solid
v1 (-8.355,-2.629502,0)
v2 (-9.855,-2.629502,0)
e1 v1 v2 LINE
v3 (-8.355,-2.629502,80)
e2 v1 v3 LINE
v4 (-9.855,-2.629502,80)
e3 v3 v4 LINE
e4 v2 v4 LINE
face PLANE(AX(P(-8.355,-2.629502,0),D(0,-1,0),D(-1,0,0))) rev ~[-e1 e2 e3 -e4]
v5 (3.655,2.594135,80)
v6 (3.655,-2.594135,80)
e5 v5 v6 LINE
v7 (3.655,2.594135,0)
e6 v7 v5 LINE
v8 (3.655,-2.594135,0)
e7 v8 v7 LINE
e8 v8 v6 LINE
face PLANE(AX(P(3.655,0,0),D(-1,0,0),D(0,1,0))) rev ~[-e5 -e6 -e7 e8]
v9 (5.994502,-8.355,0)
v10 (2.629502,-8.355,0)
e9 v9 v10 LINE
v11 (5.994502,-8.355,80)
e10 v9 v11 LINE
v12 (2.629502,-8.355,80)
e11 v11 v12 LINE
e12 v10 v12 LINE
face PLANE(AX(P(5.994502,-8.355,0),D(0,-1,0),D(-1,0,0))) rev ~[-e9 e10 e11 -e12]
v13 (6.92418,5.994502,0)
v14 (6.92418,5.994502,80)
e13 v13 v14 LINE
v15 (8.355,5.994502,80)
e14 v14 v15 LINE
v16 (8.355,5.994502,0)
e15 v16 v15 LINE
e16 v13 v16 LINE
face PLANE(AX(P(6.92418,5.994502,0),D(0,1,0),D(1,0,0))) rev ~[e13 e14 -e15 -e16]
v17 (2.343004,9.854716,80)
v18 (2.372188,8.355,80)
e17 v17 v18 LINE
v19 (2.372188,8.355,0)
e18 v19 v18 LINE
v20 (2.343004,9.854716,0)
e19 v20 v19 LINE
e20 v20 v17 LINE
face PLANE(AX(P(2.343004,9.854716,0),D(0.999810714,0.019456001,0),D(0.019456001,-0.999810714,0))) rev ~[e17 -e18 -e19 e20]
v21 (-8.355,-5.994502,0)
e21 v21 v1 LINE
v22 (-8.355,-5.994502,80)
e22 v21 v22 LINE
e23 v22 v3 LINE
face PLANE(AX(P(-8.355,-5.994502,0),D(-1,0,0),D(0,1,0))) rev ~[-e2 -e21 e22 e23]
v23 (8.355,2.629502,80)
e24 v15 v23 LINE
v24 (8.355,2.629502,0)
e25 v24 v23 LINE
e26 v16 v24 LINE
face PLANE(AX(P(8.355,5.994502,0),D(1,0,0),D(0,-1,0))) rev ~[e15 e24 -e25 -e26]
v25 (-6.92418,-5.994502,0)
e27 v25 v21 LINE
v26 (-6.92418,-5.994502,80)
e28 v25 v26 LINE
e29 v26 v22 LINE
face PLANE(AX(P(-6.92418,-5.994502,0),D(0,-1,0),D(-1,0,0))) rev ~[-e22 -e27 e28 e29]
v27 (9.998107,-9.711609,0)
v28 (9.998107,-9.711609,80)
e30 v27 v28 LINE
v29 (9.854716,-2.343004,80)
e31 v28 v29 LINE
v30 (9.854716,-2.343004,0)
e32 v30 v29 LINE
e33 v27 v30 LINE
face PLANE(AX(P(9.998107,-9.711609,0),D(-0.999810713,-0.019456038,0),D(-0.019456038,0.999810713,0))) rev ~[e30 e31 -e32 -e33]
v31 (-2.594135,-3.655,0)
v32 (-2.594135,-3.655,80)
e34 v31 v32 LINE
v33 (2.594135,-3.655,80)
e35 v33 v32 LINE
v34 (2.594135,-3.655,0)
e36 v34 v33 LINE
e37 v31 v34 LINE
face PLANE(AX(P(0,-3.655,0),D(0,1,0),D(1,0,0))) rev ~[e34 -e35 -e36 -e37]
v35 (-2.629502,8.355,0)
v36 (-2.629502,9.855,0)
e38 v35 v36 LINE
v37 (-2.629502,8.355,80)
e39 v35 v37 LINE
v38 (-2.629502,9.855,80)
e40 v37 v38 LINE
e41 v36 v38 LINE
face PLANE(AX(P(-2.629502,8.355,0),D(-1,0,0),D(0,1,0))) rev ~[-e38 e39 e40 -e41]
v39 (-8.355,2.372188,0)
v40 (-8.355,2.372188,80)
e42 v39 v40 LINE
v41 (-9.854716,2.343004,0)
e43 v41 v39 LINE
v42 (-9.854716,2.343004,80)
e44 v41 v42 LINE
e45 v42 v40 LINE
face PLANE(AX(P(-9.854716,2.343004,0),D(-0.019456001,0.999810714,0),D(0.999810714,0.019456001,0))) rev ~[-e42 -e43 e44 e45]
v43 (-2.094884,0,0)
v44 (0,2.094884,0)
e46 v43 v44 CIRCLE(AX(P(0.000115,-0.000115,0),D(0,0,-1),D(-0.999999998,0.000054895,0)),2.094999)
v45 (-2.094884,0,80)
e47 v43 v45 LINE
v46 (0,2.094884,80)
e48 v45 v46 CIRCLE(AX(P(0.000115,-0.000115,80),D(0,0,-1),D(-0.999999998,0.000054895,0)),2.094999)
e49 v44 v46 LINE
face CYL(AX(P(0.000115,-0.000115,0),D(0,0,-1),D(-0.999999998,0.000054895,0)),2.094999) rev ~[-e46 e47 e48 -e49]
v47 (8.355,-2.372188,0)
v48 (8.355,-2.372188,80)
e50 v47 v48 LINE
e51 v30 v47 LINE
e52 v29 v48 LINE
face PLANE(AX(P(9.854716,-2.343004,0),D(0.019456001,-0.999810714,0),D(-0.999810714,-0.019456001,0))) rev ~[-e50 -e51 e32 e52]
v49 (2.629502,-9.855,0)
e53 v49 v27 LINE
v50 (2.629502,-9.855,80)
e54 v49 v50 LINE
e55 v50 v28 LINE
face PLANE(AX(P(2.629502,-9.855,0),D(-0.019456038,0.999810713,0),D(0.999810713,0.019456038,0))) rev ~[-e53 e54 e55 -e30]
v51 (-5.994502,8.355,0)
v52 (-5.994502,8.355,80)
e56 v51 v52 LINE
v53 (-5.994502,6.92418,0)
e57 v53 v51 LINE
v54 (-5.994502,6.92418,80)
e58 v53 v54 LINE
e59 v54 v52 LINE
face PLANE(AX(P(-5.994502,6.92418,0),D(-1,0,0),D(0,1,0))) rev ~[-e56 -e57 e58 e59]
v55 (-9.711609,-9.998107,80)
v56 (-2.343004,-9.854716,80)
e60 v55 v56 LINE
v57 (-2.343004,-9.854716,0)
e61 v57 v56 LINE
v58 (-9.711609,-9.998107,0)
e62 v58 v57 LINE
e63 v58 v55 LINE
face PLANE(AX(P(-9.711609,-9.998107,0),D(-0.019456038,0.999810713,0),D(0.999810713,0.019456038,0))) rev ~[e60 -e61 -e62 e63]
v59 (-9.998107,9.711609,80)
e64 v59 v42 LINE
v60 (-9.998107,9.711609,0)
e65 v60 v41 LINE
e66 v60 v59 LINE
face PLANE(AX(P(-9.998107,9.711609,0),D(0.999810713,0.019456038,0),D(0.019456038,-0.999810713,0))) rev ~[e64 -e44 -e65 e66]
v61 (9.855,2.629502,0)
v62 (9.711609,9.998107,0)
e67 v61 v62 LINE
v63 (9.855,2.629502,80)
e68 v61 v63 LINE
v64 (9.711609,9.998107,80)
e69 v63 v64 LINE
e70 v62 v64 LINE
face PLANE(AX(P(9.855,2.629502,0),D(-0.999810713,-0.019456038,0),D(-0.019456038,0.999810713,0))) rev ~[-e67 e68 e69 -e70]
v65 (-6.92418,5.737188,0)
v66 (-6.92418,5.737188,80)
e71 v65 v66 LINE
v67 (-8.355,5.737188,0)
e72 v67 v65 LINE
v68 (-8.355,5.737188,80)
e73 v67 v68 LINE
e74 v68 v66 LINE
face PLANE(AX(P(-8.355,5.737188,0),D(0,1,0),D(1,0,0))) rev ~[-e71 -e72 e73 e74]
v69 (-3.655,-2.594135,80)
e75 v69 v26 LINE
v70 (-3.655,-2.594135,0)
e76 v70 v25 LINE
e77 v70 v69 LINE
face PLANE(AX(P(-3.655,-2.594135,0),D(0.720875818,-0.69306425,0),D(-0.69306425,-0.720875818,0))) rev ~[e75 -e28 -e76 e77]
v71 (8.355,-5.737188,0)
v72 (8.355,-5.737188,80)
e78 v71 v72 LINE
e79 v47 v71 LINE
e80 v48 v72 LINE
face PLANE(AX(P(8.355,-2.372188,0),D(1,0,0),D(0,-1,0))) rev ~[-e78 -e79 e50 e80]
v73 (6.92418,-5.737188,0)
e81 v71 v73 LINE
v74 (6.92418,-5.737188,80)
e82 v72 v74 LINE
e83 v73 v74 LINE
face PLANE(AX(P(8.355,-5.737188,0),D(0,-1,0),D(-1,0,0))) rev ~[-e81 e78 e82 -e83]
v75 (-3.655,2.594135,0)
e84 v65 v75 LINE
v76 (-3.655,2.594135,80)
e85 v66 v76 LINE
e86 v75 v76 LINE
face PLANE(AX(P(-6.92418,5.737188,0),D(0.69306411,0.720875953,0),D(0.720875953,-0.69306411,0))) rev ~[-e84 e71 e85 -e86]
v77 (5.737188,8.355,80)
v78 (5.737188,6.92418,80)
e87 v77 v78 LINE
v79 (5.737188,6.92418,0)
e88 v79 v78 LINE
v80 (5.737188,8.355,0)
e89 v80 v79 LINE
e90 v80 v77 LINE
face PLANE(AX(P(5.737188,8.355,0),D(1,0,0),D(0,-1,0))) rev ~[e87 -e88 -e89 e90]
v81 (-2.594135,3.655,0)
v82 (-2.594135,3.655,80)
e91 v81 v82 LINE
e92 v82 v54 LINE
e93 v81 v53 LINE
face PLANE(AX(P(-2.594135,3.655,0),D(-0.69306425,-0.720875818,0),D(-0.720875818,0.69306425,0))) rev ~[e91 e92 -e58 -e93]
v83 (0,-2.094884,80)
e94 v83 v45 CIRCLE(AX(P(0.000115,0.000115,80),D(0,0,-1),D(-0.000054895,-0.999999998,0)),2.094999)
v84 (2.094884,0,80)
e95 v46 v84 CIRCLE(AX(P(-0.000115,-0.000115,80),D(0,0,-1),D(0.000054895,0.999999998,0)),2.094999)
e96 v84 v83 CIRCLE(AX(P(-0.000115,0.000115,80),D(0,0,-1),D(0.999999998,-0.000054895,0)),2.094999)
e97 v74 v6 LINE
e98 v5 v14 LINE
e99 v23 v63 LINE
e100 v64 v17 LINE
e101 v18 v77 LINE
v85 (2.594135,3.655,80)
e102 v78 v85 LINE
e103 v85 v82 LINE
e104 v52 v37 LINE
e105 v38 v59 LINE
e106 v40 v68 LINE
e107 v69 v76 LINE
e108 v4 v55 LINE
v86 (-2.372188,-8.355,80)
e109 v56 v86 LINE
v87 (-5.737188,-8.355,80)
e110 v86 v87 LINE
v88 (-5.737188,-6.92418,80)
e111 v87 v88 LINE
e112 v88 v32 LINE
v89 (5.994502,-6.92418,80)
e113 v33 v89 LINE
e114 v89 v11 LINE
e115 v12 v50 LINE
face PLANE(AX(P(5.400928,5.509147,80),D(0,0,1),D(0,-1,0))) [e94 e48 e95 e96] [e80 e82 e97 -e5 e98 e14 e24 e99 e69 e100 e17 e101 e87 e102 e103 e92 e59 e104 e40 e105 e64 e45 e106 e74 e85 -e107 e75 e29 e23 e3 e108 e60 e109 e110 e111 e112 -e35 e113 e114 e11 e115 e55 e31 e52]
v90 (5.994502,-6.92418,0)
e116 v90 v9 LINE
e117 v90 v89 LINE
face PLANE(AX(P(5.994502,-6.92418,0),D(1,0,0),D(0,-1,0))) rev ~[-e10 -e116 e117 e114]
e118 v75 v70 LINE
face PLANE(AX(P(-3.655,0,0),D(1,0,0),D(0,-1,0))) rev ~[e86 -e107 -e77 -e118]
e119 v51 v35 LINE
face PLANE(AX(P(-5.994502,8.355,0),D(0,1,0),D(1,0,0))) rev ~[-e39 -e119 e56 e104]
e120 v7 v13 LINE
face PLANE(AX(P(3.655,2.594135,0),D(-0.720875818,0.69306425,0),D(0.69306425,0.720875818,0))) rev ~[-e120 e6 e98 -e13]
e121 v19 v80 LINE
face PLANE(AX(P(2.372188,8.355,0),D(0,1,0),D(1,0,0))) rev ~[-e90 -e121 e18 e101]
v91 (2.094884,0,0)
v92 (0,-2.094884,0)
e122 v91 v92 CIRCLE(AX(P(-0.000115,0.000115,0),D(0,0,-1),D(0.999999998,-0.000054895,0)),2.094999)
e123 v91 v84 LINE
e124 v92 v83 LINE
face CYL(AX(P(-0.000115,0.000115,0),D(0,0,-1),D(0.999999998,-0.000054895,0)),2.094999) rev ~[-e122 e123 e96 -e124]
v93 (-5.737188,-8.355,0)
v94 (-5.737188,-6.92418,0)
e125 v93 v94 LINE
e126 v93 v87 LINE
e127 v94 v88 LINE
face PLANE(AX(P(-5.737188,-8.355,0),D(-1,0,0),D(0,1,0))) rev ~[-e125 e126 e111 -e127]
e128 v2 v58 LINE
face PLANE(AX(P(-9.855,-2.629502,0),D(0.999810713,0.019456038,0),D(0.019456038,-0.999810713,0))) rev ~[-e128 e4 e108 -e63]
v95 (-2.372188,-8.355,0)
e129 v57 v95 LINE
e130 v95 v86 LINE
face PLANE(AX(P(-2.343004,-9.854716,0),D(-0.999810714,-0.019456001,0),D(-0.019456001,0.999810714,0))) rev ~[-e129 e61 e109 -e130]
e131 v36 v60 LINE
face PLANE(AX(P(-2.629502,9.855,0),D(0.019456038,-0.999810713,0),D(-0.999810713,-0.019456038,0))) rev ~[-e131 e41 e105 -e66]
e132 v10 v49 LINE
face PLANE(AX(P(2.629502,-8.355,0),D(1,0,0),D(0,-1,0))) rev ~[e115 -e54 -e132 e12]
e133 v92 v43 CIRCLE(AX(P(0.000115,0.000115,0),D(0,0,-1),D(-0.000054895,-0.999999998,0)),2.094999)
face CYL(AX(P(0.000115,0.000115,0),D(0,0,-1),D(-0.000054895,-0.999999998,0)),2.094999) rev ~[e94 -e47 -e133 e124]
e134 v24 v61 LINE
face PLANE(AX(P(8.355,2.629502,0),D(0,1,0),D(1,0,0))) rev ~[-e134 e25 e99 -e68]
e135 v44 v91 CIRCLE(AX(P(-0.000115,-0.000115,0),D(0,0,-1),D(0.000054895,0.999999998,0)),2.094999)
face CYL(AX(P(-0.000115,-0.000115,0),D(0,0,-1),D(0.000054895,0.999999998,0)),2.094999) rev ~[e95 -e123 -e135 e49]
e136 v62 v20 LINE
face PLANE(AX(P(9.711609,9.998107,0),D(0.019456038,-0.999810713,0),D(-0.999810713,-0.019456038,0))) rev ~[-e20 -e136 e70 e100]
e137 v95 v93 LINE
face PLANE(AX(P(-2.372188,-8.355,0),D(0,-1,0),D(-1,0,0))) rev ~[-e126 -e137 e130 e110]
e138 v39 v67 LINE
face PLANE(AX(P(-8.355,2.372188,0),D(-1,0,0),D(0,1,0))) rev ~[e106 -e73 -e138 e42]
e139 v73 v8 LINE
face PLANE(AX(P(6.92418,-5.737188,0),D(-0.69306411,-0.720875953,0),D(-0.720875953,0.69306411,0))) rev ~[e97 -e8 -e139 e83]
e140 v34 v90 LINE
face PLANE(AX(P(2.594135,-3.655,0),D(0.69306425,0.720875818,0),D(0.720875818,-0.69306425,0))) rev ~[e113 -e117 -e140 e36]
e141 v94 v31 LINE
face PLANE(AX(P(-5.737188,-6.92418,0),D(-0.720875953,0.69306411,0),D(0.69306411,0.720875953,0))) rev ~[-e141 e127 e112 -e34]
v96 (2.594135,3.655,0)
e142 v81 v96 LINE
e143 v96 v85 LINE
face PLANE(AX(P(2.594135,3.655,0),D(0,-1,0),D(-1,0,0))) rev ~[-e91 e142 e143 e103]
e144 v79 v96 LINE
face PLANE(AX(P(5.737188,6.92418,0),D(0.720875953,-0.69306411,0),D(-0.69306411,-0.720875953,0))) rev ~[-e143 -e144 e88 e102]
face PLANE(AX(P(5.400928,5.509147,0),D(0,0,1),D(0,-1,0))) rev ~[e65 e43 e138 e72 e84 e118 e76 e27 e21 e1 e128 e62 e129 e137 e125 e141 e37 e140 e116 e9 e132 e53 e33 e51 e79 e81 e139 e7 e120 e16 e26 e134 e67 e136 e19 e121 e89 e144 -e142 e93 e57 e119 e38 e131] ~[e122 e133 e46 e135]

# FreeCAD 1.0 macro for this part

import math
import FreeCAD as App
import Part
import Sketcher

V = App.Vector

doc = App.newDocument("Part")
body = doc.addObject("PartDesign::Body", "Body")

sketch1 = body.newObject("Sketcher::SketchObject", "Sketch")
sketch1.AttachmentSupport = (doc.getObject("XY_Plane"), [""])
sketch1.MapMode = "FlatFace"
sketch1.addGeometry(Part.LineSegment(V(0, 3.7, 0), V(-2.6, 3.7, 0)), False)
sketch1.addGeometry(Part.LineSegment(V(-2.6, 3.7, 0), V(-6, 6.9, 0)), False)
sketch1.addGeometry(Part.LineSegment(V(-6, 6.9, 0), V(-6, 8.4, 0)), False)
sketch1.addGeometry(Part.LineSegment(V(-6, 8.4, 0), V(-2.6, 8.4, 0)), False)
sketch1.addGeometry(Part.LineSegment(V(-2.6, 8.4, 0), V(-2.6, 9.9, 0)), False)
sketch1.addGeometry(Part.LineSegment(V(-2.6, 9.9, 0), V(-10, 9.7, 0)), False)
sketch1.addGeometry(Part.LineSegment(V(-10, 9.7, 0), V(-9.9, 2.3, 0)), False)
sketch1.addGeometry(Part.LineSegment(V(-9.9, 2.3, 0), V(-8.4, 2.4, 0)), False)
sketch1.addGeometry(Part.LineSegment(V(-8.4, 2.4, 0), V(-8.4, 5.7, 0)), False)
sketch1.addGeometry(Part.LineSegment(V(-8.4, 5.7, 0), V(-6.9, 5.7, 0)), False)
sketch1.addGeometry(Part.LineSegment(V(-6.9, 5.7, 0), V(-3.7, 2.6, 0)), False)
sketch1.addGeometry(Part.LineSegment(V(-3.7, 2.6, 0), V(-3.7, 0, 0)), False)
sketch1.addGeometry(Part.LineSegment(V(-3.7, 0, 0), V(-2.1, 0, 0)), False)
sketch1.addGeometry(Part.ArcOfCircle(Part.Circle(V(0, 0, 0), V(0, 0, 1), 2.1), math.radians(90), math.radians(180)), False)
sketch1.addGeometry(Part.LineSegment(V(0, 2.1, 0), V(0, 3.7, 0)), False)
sketch1.addConstraint(Sketcher.Constraint("Coincident", 0, 2, 1, 1))
sketch1.addConstraint(Sketcher.Constraint("Coincident", 1, 2, 2, 1))
sketch1.addConstraint(Sketcher.Constraint("Coincident", 2, 2, 3, 1))
sketch1.addConstraint(Sketcher.Constraint("Coincident", 3, 2, 4, 1))
sketch1.addConstraint(Sketcher.Constraint("Coincident", 4, 2, 5, 1))
sketch1.addConstraint(Sketcher.Constraint("Coincident", 5, 2, 6, 1))
sketch1.addConstraint(Sketcher.Constraint("Coincident", 6, 2, 7, 1))
sketch1.addConstraint(Sketcher.Constraint("Coincident", 7, 2, 8, 1))
sketch1.addConstraint(Sketcher.Constraint("Coincident", 8, 2, 9, 1))
sketch1.addConstraint(Sketcher.Constraint("Coincident", 9, 2, 10, 1))
sketch1.addConstraint(Sketcher.Constraint("Coincident", 10, 2, 11, 1))
sketch1.addConstraint(Sketcher.Constraint("Coincident", 11, 2, 12, 1))
sketch1.addConstraint(Sketcher.Constraint("Coincident", 12, 2, 13, 2))
sketch1.addConstraint(Sketcher.Constraint("Coincident", 13, 1, 14, 1))
sketch1.addConstraint(Sketcher.Constraint("Coincident", 14, 2, 0, 1))
sketch1.addConstraint(Sketcher.Constraint("Horizontal", 0))
sketch1.addConstraint(Sketcher.Constraint("Vertical", 2))
sketch1.addConstraint(Sketcher.Constraint("Horizontal", 3))
sketch1.addConstraint(Sketcher.Constraint("Vertical", 4))
sketch1.addConstraint(Sketcher.Constraint("Vertical", 8))
sketch1.addConstraint(Sketcher.Constraint("Horizontal", 9))
sketch1.addConstraint(Sketcher.Constraint("Vertical", 11))
sketch1.addConstraint(Sketcher.Constraint("Horizontal", 12))
sketch1.addConstraint(Sketcher.Constraint("Vertical", 14))
sketch1.addConstraint(Sketcher.Constraint("PointOnObject", 11, 2, -1))
sketch1.addConstraint(Sketcher.Constraint("PointOnObject", 13, 1, -2))
sketch1.addConstraint(Sketcher.Constraint("Perpendicular", 5, 6))
sketch1.addConstraint(Sketcher.Constraint("Perpendicular", 6, 7))
sketch1.addConstraint(Sketcher.Constraint("Parallel", 1, 10))
sketch1.addConstraint(Sketcher.Constraint("Equal", 9, 2))
sketch1.addConstraint(Sketcher.Constraint("Equal", 3, 8))
sketch1.addConstraint(Sketcher.Constraint("Equal", 0, 11))
sketch1.addConstraint(Sketcher.Constraint("Equal", 12, 14))
sketch1.addConstraint(Sketcher.Constraint("Equal", 5, 6))
sketch1.addConstraint(Sketcher.Constraint("DistanceY", 4, 1, 4, 2, 1.5))
sketch1.addConstraint(Sketcher.Constraint("Radius", 13, 2.094999))
sketch1.addConstraint(Sketcher.Constraint("Distance", 7, 1.5))
sketch1.addConstraint(Sketcher.Constraint("DistanceY", 0, 2, 2, 2, 4.7))
sketch1.addConstraint(Sketcher.Constraint("DistanceX", 7, 2, 10, 2, 4.7))
sketch1.addConstraint(Sketcher.Constraint("Distance", 5, 7.37))
sketch1.addConstraint(Sketcher.Constraint("DistanceX", 3, 1, 3, 2, 3.365))
sketch1.addConstraint(Sketcher.Constraint("DistanceY", -1, 1, 0, 2, 3.655))
sketch1.addConstraint(Sketcher.Constraint("DistanceX", 7, 2, -1, 1, 8.355))
sketch1.addConstraint(Sketcher.Constraint("DistanceX", 9, 1, 9, 2, 1.43082))
sketch1.addConstraint(Sketcher.Constraint("DistanceX", 1, 2, -1, 1, 5.994502))
sketch1.addConstraint(Sketcher.Constraint("DistanceX", 12, 1, 12, 2, 1.560116))
pad1 = body.newObject("PartDesign::Pad", "Pad")
pad1.Profile = sketch1
pad1.Length = 80
body2 = doc.addObject("PartDesign::Body", "Body001")
doc.recompute()

body2.BaseFeature = body
doc.recompute()

body3 = doc.addObject("PartDesign::Body", "Body002")
body3.BaseFeature = body
body3.Placement = App.Placement(V(0, 0, 0), App.Rotation(V(0, 0, 1), 90))
boolean = body2.newObject("PartDesign::Boolean", "Boolean")
boolean.Type = "Fuse"
boolean.addObjects([body3])
doc.recompute()

body4 = doc.addObject("PartDesign::Body", "Body003")
body4.BaseFeature = body
body4.Placement = App.Placement(V(0, 0, 0), App.Rotation(V(0, 0, 1), 180))
boolean2 = body2.newObject("PartDesign::Boolean", "Boolean001")
boolean2.Type = "Fuse"
boolean2.addObjects([body4])
doc.recompute()

body.Placement = App.Placement(V(0, 0, 0), App.Rotation(V(0, 0, 1), 270))
boolean3 = body2.newObject("PartDesign::Boolean", "Boolean002")
boolean3.Type = "Fuse"
boolean3.addObjects([body])

doc.recompute()
